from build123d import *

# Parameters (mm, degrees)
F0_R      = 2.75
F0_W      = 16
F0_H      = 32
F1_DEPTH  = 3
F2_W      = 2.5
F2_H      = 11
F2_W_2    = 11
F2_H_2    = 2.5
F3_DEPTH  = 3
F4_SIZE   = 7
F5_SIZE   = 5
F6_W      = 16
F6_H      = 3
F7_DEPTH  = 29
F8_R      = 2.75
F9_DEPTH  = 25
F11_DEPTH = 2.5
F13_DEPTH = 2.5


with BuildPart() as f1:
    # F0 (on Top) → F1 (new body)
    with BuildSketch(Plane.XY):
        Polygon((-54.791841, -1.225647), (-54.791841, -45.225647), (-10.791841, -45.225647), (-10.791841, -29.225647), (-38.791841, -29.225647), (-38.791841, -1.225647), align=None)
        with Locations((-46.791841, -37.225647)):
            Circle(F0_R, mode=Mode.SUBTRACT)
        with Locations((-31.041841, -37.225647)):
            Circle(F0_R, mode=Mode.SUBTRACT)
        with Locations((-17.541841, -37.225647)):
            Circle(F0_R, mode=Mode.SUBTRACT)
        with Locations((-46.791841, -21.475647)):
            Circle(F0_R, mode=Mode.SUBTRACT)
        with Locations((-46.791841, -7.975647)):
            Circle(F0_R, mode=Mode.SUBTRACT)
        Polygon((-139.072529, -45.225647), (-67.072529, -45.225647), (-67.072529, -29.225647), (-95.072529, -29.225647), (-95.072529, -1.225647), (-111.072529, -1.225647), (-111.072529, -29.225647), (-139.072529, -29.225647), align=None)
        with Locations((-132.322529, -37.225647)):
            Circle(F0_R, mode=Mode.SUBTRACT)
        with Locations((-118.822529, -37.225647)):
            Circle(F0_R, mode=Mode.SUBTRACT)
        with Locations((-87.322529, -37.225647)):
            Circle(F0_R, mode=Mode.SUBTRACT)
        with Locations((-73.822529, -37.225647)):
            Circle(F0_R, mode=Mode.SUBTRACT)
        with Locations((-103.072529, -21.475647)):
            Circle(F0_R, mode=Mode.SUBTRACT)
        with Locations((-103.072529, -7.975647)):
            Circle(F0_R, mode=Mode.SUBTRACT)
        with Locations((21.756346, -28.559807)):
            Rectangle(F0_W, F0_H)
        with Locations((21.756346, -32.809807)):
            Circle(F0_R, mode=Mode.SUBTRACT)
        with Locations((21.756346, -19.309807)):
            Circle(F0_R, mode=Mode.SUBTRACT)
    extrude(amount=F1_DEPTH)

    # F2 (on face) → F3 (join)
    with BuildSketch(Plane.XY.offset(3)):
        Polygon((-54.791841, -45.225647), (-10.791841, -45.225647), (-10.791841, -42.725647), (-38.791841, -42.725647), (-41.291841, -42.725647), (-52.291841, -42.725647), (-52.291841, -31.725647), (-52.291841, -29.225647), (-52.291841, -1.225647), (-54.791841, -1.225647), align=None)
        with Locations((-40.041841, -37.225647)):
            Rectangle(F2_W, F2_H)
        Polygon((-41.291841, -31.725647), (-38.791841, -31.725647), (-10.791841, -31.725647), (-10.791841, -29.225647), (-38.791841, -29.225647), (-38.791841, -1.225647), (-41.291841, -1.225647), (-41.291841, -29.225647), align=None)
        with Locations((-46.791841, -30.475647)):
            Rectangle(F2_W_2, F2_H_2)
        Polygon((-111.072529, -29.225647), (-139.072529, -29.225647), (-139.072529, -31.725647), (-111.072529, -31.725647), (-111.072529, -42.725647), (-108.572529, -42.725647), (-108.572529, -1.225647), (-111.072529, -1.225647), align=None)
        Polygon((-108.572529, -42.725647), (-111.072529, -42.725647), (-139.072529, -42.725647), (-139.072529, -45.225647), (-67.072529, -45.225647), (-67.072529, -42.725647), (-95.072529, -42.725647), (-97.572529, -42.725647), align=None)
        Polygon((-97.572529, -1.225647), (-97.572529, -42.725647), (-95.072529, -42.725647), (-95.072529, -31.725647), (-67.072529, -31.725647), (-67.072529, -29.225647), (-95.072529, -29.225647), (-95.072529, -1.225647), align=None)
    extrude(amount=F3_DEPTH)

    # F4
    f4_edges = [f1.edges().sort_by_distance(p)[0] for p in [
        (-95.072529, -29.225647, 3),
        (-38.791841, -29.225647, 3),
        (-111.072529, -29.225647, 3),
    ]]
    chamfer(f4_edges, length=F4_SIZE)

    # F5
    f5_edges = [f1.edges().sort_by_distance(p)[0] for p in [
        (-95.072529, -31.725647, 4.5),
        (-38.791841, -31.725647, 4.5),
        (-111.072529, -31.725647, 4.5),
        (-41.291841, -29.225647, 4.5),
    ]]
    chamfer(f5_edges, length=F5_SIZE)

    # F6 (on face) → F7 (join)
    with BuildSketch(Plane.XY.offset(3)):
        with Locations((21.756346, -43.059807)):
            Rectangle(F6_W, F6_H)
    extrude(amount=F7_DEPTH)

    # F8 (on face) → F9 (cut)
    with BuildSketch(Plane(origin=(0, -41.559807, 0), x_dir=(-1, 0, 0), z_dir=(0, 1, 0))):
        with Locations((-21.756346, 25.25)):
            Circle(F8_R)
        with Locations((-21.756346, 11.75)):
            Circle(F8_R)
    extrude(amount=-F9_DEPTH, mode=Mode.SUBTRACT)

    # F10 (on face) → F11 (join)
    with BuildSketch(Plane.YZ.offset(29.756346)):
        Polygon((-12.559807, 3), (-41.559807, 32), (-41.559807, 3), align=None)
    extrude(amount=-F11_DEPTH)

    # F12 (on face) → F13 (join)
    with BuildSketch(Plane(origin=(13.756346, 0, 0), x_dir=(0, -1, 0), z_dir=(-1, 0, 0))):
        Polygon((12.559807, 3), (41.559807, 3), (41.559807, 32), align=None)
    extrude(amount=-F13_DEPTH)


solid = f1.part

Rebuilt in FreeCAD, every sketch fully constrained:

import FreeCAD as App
import Part
import Sketcher
from FreeCAD import Vector


def edges_at(feature, points):
    """Names of the edges that pass closest to the given points."""
    edges = feature.Shape.Edges
    near = lambda p: min(range(len(edges)), key=lambda i: edges[i].distToShape(Part.Vertex(*p))[0])
    return sorted({f"Edge{near(p) + 1}" for p in points})


def add_polygon(sketch, points):
    """Adds a closed chain of lines whose ends are joined by coincident constraints."""
    first, n = sketch.GeometryCount, len(points)
    for a, b in zip(points, points[1:] + points[:1]):
        sketch.addGeometry(Part.LineSegment(App.Vector(*a, 0), App.Vector(*b, 0)), False)
    for i in range(n):
        sketch.addConstraint(Sketcher.Constraint("Coincident", first + i, 2, first + (i + 1) % n, 1))

doc = App.newDocument("Part")
body = doc.addObject("PartDesign::Body", "Body")
body.AllowCompound = True

sketch1 = body.newObject("Sketcher::SketchObject", "Sketch")
sketch1.AttachmentSupport = (doc.getObject("XY_Plane"), [""])
sketch1.MapMode = "FlatFace"
add_polygon(sketch1, [(-54.8, -1.2), (-54.8, -45.2), (-10.8, -45.2), (-10.8, -29.2), (-38.8, -29.2), (-38.8, -1.2)])
sketch1.addGeometry(Part.Circle(Vector(-46.8, -37.2, 0), Vector(0, 0, 1), 2.8), False)
sketch1.addGeometry(Part.Circle(Vector(-31, -37.2, 0), Vector(0, 0, 1), 2.8), False)
sketch1.addGeometry(Part.Circle(Vector(-17.5, -37.2, 0), Vector(0, 0, 1), 2.8), False)
sketch1.addGeometry(Part.Circle(Vector(-46.8, -21.5, 0), Vector(0, 0, 1), 2.8), False)
sketch1.addGeometry(Part.Circle(Vector(-46.8, -8, 0), Vector(0, 0, 1), 2.8), False)
add_polygon(sketch1, [(-139.1, -45.2), (-67.1, -45.2), (-67.1, -29.2), (-95.1, -29.2), (-95.1, -1.2), (-111.1, -1.2), (-111.1, -29.2), (-139.1, -29.2)])
sketch1.addGeometry(Part.Circle(Vector(-132.3, -37.2, 0), Vector(0, 0, 1), 2.8), False)
sketch1.addGeometry(Part.Circle(Vector(-118.8, -37.2, 0), Vector(0, 0, 1), 2.8), False)
sketch1.addGeometry(Part.Circle(Vector(-87.3, -37.2, 0), Vector(0, 0, 1), 2.8), False)
sketch1.addGeometry(Part.Circle(Vector(-73.8, -37.2, 0), Vector(0, 0, 1), 2.8), False)
sketch1.addGeometry(Part.Circle(Vector(-103.1, -21.5, 0), Vector(0, 0, 1), 2.8), False)
sketch1.addGeometry(Part.Circle(Vector(-103.1, -8, 0), Vector(0, 0, 1), 2.8), False)
add_polygon(sketch1, [(13.8, -12.6), (13.8, -44.6), (29.8, -44.6), (29.8, -12.6)])
sketch1.addGeometry(Part.Circle(Vector(21.8, -32.8, 0), Vector(0, 0, 1), 2.8), False)
sketch1.addGeometry(Part.Circle(Vector(21.8, -19.3, 0), Vector(0, 0, 1), 2.8), False)
sketch1.addConstraint(Sketcher.Constraint("Vertical", 0))
sketch1.addConstraint(Sketcher.Constraint("Horizontal", 1))
sketch1.addConstraint(Sketcher.Constraint("Vertical", 2))
sketch1.addConstraint(Sketcher.Constraint("Horizontal", 3))
sketch1.addConstraint(Sketcher.Constraint("Vertical", 4))
sketch1.addConstraint(Sketcher.Constraint("Horizontal", 5))
sketch1.addConstraint(Sketcher.Constraint("Horizontal", 11))
sketch1.addConstraint(Sketcher.Constraint("Vertical", 12))
sketch1.addConstraint(Sketcher.Constraint("Horizontal", 13))
sketch1.addConstraint(Sketcher.Constraint("Vertical", 14))
sketch1.addConstraint(Sketcher.Constraint("Horizontal", 15))
sketch1.addConstraint(Sketcher.Constraint("Vertical", 16))
sketch1.addConstraint(Sketcher.Constraint("Horizontal", 17))
sketch1.addConstraint(Sketcher.Constraint("Vertical", 18))
sketch1.addConstraint(Sketcher.Constraint("Vertical", 25))
sketch1.addConstraint(Sketcher.Constraint("Horizontal", 26))
sketch1.addConstraint(Sketcher.Constraint("Vertical", 27))
sketch1.addConstraint(Sketcher.Constraint("Horizontal", 28))
sketch1.addConstraint(Sketcher.Constraint("Equal", 6, 7))
sketch1.addConstraint(Sketcher.Constraint("Equal", 7, 8))
sketch1.addConstraint(Sketcher.Constraint("Equal", 8, 9))
sketch1.addConstraint(Sketcher.Constraint("Equal", 9, 10))
sketch1.addConstraint(Sketcher.Constraint("Equal", 10, 19))
sketch1.addConstraint(Sketcher.Constraint("Equal", 19, 20))
sketch1.addConstraint(Sketcher.Constraint("Equal", 20, 21))
sketch1.addConstraint(Sketcher.Constraint("Equal", 21, 22))
sketch1.addConstraint(Sketcher.Constraint("Equal", 22, 23))
sketch1.addConstraint(Sketcher.Constraint("Equal", 23, 24))
sketch1.addConstraint(Sketcher.Constraint("Equal", 24, 29))
sketch1.addConstraint(Sketcher.Constraint("Equal", 29, 30))
sketch1.addConstraint(Sketcher.Constraint("Horizontal", 6, 3, 7, 3))
sketch1.addConstraint(Sketcher.Constraint("Horizontal", 7, 3, 8, 3))
sketch1.addConstraint(Sketcher.Constraint("Horizontal", 8, 3, 19, 3))
sketch1.addConstraint(Sketcher.Constraint("Horizontal", 19, 3, 20, 3))
sketch1.addConstraint(Sketcher.Constraint("Horizontal", 20, 3, 21, 3))
sketch1.addConstraint(Sketcher.Constraint("Horizontal", 21, 3, 22, 3))
sketch1.addConstraint(Sketcher.Constraint("Horizontal", 9, 3, 23, 3))
sketch1.addConstraint(Sketcher.Constraint("Horizontal", 10, 3, 24, 3))
sketch1.addConstraint(Sketcher.Constraint("Horizontal", 1, 2, 11, 2))
sketch1.addConstraint(Sketcher.Constraint("Horizontal", 3, 2, 12, 2))
sketch1.addConstraint(Sketcher.Constraint("Horizontal", 5, 2, 14, 2))
sketch1.addConstraint(Sketcher.Constraint("Horizontal", 13, 2, 16, 2))
sketch1.addConstraint(Sketcher.Constraint("Vertical", 6, 3, 9, 3))
sketch1.addConstraint(Sketcher.Constraint("Vertical", 9, 3, 10, 3))
sketch1.addConstraint(Sketcher.Constraint("Vertical", 23, 3, 24, 3))
sketch1.addConstraint(Sketcher.Constraint("Vertical", 29, 3, 30, 3))
sketch1.addConstraint(Sketcher.Constraint("Equal", 3, 13))
sketch1.addConstraint(Sketcher.Constraint("Equal", 5, 15))
sketch1.addConstraint(Sketcher.Constraint("Equal", 13, 17))
sketch1.addConstraint(Sketcher.Constraint("Equal", 15, 26))
sketch1.addConstraint(Sketcher.Constraint("Equal", 1, 0))
sketch1.addConstraint(Sketcher.Constraint("Equal", 28, 2))
sketch1.addConstraint(Sketcher.Constraint("Diameter", 6, 5.5))
sketch1.addConstraint(Sketcher.Constraint("DistanceX", 1, 1, 1, 2, 44.0))
sketch1.addConstraint(Sketcher.Constraint("DistanceX", 3, 2, 3, 1, 28.0))
sketch1.addConstraint(Sketcher.Constraint("DistanceY", 25, 2, 25, 1, 32.0))
sketch1.addConstraint(Sketcher.Constraint("DistanceX", 19, 3, 21, 3, 45.0))
sketch1.addConstraint(Sketcher.Constraint("DistanceX", 0, 2, 6, 3, 8.0))
sketch1.addConstraint(Sketcher.Constraint("DistanceY", 0, 2, 6, 3, 8.0))
sketch1.addConstraint(Sketcher.Constraint("DistanceX", 23, 3, 13, 2, 8.0))
sketch1.addConstraint(Sketcher.Constraint("DistanceX", 25, 2, 29, 3, 8.0))
sketch1.addConstraint(Sketcher.Constraint("DistanceX", 7, 3, 8, 3, 13.5))
sketch1.addConstraint(Sketcher.Constraint("DistanceY", 9, 3, 10, 3, 13.5))
sketch1.addConstraint(Sketcher.Constraint("DistanceX", 19, 3, 20, 3, 13.5))
sketch1.addConstraint(Sketcher.Constraint("DistanceX", 21, 3, 22, 3, 13.5))
sketch1.addConstraint(Sketcher.Constraint("DistanceY", 29, 3, 30, 3, 13.5))
sketch1.addConstraint(Sketcher.Constraint("DistanceX", 6, 3, 7, 3, 15.75))
sketch1.addConstraint(Sketcher.Constraint("DistanceY", 6, 3, 9, 3, 15.75))
sketch1.addConstraint(Sketcher.Constraint("DistanceX", 20, 3, 23, 3, 15.75))
sketch1.addConstraint(Sketcher.Constraint("DistanceY", 25, 2, 29, 3, 11.75))
sketch1.addConstraint(Sketcher.Constraint("DistanceX", 6, 3, -1, 1, 46.791841))
sketch1.addConstraint(Sketcher.Constraint("DistanceX", 19, 3, -1, 1, 132.322529))
sketch1.addConstraint(Sketcher.Constraint("DistanceY", 8, 3, 29, 3, 4.41584))
sketch1.addConstraint(Sketcher.Constraint("DistanceY", 6, 3, -1, 1, 37.225647))
sketch1.addConstraint(Sketcher.Constraint("DistanceX", -1, 1, 29, 3, 21.756346))
pad1 = body.newObject("PartDesign::Pad", "Pad")
pad1.Profile = sketch1
pad1.Length = 3

sketch2 = body.newObject("Sketcher::SketchObject", "Sketch001")
sketch2.AttachmentSupport = (doc.getObject("XY_Plane"), [""])
sketch2.MapMode = "FlatFace"
sketch2.AttachmentOffset = App.Placement(Vector(0, 0, 3), App.Rotation())
add_polygon(sketch2, [(-54.8, -45.2), (-10.8, -45.2), (-10.8, -42.7), (-38.8, -42.7), (-38.8, -31.7), (-10.8, -31.7), (-10.8, -29.2), (-38.8, -29.2), (-38.8, -1.2), (-41.3, -1.2), (-41.3, -29.2), (-52.3, -29.2), (-52.3, -1.2), (-54.8, -1.2)])
add_polygon(sketch2, [(-41.3, -31.7), (-41.3, -42.7), (-52.3, -42.7), (-52.3, -31.7)])
add_polygon(sketch2, [(-111.1, -29.2), (-139.1, -29.2), (-139.1, -31.7), (-111.1, -31.7), (-111.1, -42.7), (-139.1, -42.7), (-139.1, -45.2), (-67.1, -45.2), (-67.1, -42.7), (-95.1, -42.7), (-95.1, -31.7), (-67.1, -31.7), (-67.1, -29.2), (-95.1, -29.2), (-95.1, -1.2), (-97.6, -1.2), (-97.6, -42.7), (-108.6, -42.7), (-108.6, -1.2), (-111.1, -1.2)])
sketch2.addConstraint(Sketcher.Constraint("Horizontal", 0))
sketch2.addConstraint(Sketcher.Constraint("Vertical", 1))
sketch2.addConstraint(Sketcher.Constraint("Horizontal", 2))
sketch2.addConstraint(Sketcher.Constraint("Vertical", 3))
sketch2.addConstraint(Sketcher.Constraint("Horizontal", 4))
sketch2.addConstraint(Sketcher.Constraint("Vertical", 5))
sketch2.addConstraint(Sketcher.Constraint("Horizontal", 6))
sketch2.addConstraint(Sketcher.Constraint("Vertical", 7))
sketch2.addConstraint(Sketcher.Constraint("Horizontal", 8))
sketch2.addConstraint(Sketcher.Constraint("Vertical", 9))
sketch2.addConstraint(Sketcher.Constraint("Horizontal", 10))
sketch2.addConstraint(Sketcher.Constraint("Vertical", 11))
sketch2.addConstraint(Sketcher.Constraint("Horizontal", 12))
sketch2.addConstraint(Sketcher.Constraint("Vertical", 13))
sketch2.addConstraint(Sketcher.Constraint("Vertical", 14))
sketch2.addConstraint(Sketcher.Constraint("Horizontal", 15))
sketch2.addConstraint(Sketcher.Constraint("Vertical", 16))
sketch2.addConstraint(Sketcher.Constraint("Horizontal", 17))
sketch2.addConstraint(Sketcher.Constraint("Horizontal", 18))
sketch2.addConstraint(Sketcher.Constraint("Vertical", 19))
sketch2.addConstraint(Sketcher.Constraint("Horizontal", 20))
sketch2.addConstraint(Sketcher.Constraint("Vertical", 21))
sketch2.addConstraint(Sketcher.Constraint("Horizontal", 22))
sketch2.addConstraint(Sketcher.Constraint("Vertical", 23))
sketch2.addConstraint(Sketcher.Constraint("Horizontal", 24))
sketch2.addConstraint(Sketcher.Constraint("Vertical", 25))
sketch2.addConstraint(Sketcher.Constraint("Horizontal", 26))
sketch2.addConstraint(Sketcher.Constraint("Vertical", 27))
sketch2.addConstraint(Sketcher.Constraint("Horizontal", 28))
sketch2.addConstraint(Sketcher.Constraint("Vertical", 29))
sketch2.addConstraint(Sketcher.Constraint("Horizontal", 30))
sketch2.addConstraint(Sketcher.Constraint("Vertical", 31))
sketch2.addConstraint(Sketcher.Constraint("Horizontal", 32))
sketch2.addConstraint(Sketcher.Constraint("Vertical", 33))
sketch2.addConstraint(Sketcher.Constraint("Horizontal", 34))
sketch2.addConstraint(Sketcher.Constraint("Vertical", 35))
sketch2.addConstraint(Sketcher.Constraint("Horizontal", 36))
sketch2.addConstraint(Sketcher.Constraint("Vertical", 37))
sketch2.addConstraint(Sketcher.Constraint("Horizontal", 6, 2, 9, 2))
sketch2.addConstraint(Sketcher.Constraint("Horizontal", 8, 2, 11, 2))
sketch2.addConstraint(Sketcher.Constraint("Horizontal", 2, 2, 14, 2))
sketch2.addConstraint(Sketcher.Constraint("Horizontal", 4, 2, 16, 2))
sketch2.addConstraint(Sketcher.Constraint("Horizontal", 10, 2, 18, 2))
sketch2.addConstraint(Sketcher.Constraint("Horizontal", 17, 2, 19, 2))
sketch2.addConstraint(Sketcher.Constraint("Horizontal", 15, 2, 21, 2))
sketch2.addConstraint(Sketcher.Constraint("Horizontal", 13, 2, 23, 2))
sketch2.addConstraint(Sketcher.Constraint("Horizontal", 22, 2, 25, 2))
sketch2.addConstraint(Sketcher.Constraint("Horizontal", 20, 2, 27, 2))
sketch2.addConstraint(Sketcher.Constraint("Horizontal", 18, 2, 29, 2))
sketch2.addConstraint(Sketcher.Constraint("Horizontal", 12, 2, 31, 2))
sketch2.addConstraint(Sketcher.Constraint("Horizontal", 26, 2, 33, 2))
sketch2.addConstraint(Sketcher.Constraint("Horizontal", 32, 2, 35, 2))
sketch2.addConstraint(Sketcher.Constraint("Vertical", 1, 2, 4, 2))
sketch2.addConstraint(Sketcher.Constraint("Vertical", 3, 2, 6, 2))
sketch2.addConstraint(Sketcher.Constraint("Vertical", 9, 2, 14, 2))
sketch2.addConstraint(Sketcher.Constraint("Vertical", 11, 2, 15, 2))
sketch2.addConstraint(Sketcher.Constraint("Vertical", 19, 2, 22, 2))
sketch2.addConstraint(Sketcher.Constraint("Vertical", 25, 2, 28, 2))
sketch2.addConstraint(Sketcher.Constraint("Vertical", 27, 2, 30, 2))
sketch2.addConstraint(Sketcher.Constraint("Vertical", 21, 2, 36, 2))
sketch2.addConstraint(Sketcher.Constraint("Equal", 8, 12))
sketch2.addConstraint(Sketcher.Constraint("Equal", 6, 18))
sketch2.addConstraint(Sketcher.Constraint("Equal", 22, 26))
sketch2.addConstraint(Sketcher.Constraint("Equal", 12, 32))
sketch2.addConstraint(Sketcher.Constraint("Equal", 17, 34))
sketch2.addConstraint(Sketcher.Constraint("Equal", 32, 36))
sketch2.addConstraint(Sketcher.Constraint("Equal", 36, 1))
sketch2.addConstraint(Sketcher.Constraint("Equal", 34, 3))
sketch2.addConstraint(Sketcher.Constraint("Equal", 1, 5))
sketch2.addConstraint(Sketcher.Constraint("Equal", 30, 7))
sketch2.addConstraint(Sketcher.Constraint("DistanceX", 0, 1, 0, 2, 44.0))
sketch2.addConstraint(Sketcher.Constraint("DistanceX", 2, 2, 2, 1, 28.0))
sketch2.addConstraint(Sketcher.Constraint("DistanceX", 10, 2, 10, 1, 11.0))
sketch2.addConstraint(Sketcher.Constraint("DistanceX", 0, 2, -1, 1, 10.791841))
sketch2.addConstraint(Sketcher.Constraint("DistanceX", 18, 2, -1, 1, 139.072529))
sketch2.addConstraint(Sketcher.Constraint("DistanceY", 0, 2, -1, 1, 45.225647))
pad2 = body.newObject("PartDesign::Pad", "Pad001")
pad2.Profile = sketch2
pad2.Length = 3
doc.recompute()

chamfer = body.newObject("PartDesign::Chamfer", "Chamfer")
chamfer.Base = (pad2, edges_at(pad2, [(-95.073, -29.226, 3), (-38.792, -29.226, 3), (-111.073, -29.226, 3)]))
chamfer.Size = 7
doc.recompute()

chamfer2 = body.newObject("PartDesign::Chamfer", "Chamfer001")
chamfer2.Base = (chamfer, edges_at(chamfer, [
    (-95.073, -31.726, 4.5),
    (-38.792, -31.726, 4.5),
    (-111.073, -31.726, 4.5),
    (-41.292, -29.226, 4.5),
]))
chamfer2.Size = 5

sketch3 = body.newObject("Sketcher::SketchObject", "Sketch002")
sketch3.AttachmentSupport = (doc.getObject("XY_Plane"), [""])
sketch3.MapMode = "FlatFace"
sketch3.AttachmentOffset = App.Placement(Vector(0, 0, 3), App.Rotation())
add_polygon(sketch3, [(13.8, -41.6), (13.8, -44.6), (29.8, -44.6), (29.8, -41.6)])
sketch3.addConstraint(Sketcher.Constraint("Vertical", 0))
sketch3.addConstraint(Sketcher.Constraint("Horizontal", 1))
sketch3.addConstraint(Sketcher.Constraint("Vertical", 2))
sketch3.addConstraint(Sketcher.Constraint("Horizontal", 3))
sketch3.addConstraint(Sketcher.Constraint("DistanceX", 1, 1, 1, 2, 16.0))
sketch3.addConstraint(Sketcher.Constraint("DistanceY", 0, 2, 0, 1, 3.0))
sketch3.addConstraint(Sketcher.Constraint("DistanceX", -1, 1, 0, 2, 13.756346))
sketch3.addConstraint(Sketcher.Constraint("DistanceY", 0, 2, -1, 1, 44.559807))
pad3 = body.newObject("PartDesign::Pad", "Pad002")
pad3.Profile = sketch3
pad3.Length = 29

sketch4 = body.newObject("Sketcher::SketchObject", "Sketch003")
sketch4.AttachmentSupport = (doc.getObject("XZ_Plane"), [""])
sketch4.MapMode = "FlatFace"
sketch4.AttachmentOffset = App.Placement(Vector(0, 0, 41.559807), App.Rotation())
sketch4.addGeometry(Part.Circle(Vector(21.8, 25.2, 0), Vector(0, 0, 1), 2.8), False)
sketch4.addGeometry(Part.Circle(Vector(21.8, 11.8, 0), Vector(0, 0, 1), 2.8), False)
sketch4.addConstraint(Sketcher.Constraint("Equal", 0, 1))
sketch4.addConstraint(Sketcher.Constraint("Vertical", 0, 3, 1, 3))
sketch4.addConstraint(Sketcher.Constraint("Diameter", 0, 5.5))
sketch4.addConstraint(Sketcher.Constraint("DistanceY", 1, 3, 0, 3, 13.5))
sketch4.addConstraint(Sketcher.Constraint("DistanceY", -1, 1, 0, 3, 25.25))
sketch4.addConstraint(Sketcher.Constraint("DistanceX", -1, 1, 0, 3, 21.756346))
pocket1 = body.newObject("PartDesign::Pocket", "Pocket")
pocket1.Profile = sketch4
pocket1.Length = 25
pocket1.Reversed = True

sketch5 = body.newObject("Sketcher::SketchObject", "Sketch004")
sketch5.AttachmentSupport = (doc.getObject("YZ_Plane"), [""])
sketch5.MapMode = "FlatFace"
sketch5.AttachmentOffset = App.Placement(Vector(0, 0, 29.756346), App.Rotation())
add_polygon(sketch5, [(-13, 3), (-42, 32), (-42, 3)])
sketch5.addConstraint(Sketcher.Constraint("Vertical", 1))
sketch5.addConstraint(Sketcher.Constraint("Horizontal", 2))
sketch5.addConstraint(Sketcher.Constraint("Equal", 2, 1))
sketch5.addConstraint(Sketcher.Constraint("DistanceX", 2, 1, 2, 2, 29.0))
sketch5.addConstraint(Sketcher.Constraint("DistanceY", -1, 1, 0, 2, 32.0))
sketch5.addConstraint(Sketcher.Constraint("DistanceX", 0, 2, -1, 1, 41.559807))
pad4 = body.newObject("PartDesign::Pad", "Pad003")
pad4.Profile = sketch5
pad4.Length = 2.5
pad4.Reversed = True

sketch6 = body.newObject("Sketcher::SketchObject", "Sketch005")
sketch6.AttachmentSupport = (doc.getObject("YZ_Plane"), [""])
sketch6.MapMode = "FlatFace"
sketch6.AttachmentOffset = App.Placement(Vector(0, 0, 13.756346), App.Rotation())
add_polygon(sketch6, [(-13, 3), (-42, 3), (-42, 32)])
sketch6.addConstraint(Sketcher.Constraint("Horizontal", 0))
sketch6.addConstraint(Sketcher.Constraint("Vertical", 1))
sketch6.addConstraint(Sketcher.Constraint("Equal", 0, 1))
sketch6.addConstraint(Sketcher.Constraint("DistanceX", 0, 2, 0, 1, 29.0))
sketch6.addConstraint(Sketcher.Constraint("DistanceY", -1, 1, 0, 2, 3.0))
sketch6.addConstraint(Sketcher.Constraint("DistanceX", 0, 2, -1, 1, 41.559807))
pad5 = body.newObject("PartDesign::Pad", "Pad004")
pad5.Profile = sketch6
pad5.Length = 2.5

doc.recompute()
